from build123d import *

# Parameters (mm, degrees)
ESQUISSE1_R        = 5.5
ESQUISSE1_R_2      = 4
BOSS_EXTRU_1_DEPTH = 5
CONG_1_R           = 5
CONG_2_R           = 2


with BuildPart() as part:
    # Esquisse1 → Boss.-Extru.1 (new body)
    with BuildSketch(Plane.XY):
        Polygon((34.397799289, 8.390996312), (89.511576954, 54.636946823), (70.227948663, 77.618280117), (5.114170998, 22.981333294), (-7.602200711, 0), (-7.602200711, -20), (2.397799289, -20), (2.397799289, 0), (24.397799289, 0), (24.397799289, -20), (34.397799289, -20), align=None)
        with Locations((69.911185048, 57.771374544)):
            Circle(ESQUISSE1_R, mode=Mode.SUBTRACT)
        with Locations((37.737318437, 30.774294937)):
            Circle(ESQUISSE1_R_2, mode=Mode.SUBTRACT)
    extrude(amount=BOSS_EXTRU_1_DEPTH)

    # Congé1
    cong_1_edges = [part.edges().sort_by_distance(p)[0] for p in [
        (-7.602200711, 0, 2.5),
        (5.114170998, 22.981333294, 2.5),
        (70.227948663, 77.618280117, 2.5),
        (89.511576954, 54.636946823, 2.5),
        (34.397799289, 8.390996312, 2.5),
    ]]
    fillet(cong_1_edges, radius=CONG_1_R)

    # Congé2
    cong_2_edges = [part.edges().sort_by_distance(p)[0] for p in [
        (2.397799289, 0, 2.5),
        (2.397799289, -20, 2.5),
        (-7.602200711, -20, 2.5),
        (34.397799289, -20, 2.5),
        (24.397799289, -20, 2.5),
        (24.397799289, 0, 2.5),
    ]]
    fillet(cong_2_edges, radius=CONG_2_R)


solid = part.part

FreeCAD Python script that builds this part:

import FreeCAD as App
import Part
import Sketcher

V = App.Vector
Q = App.Units.Quantity


def edges_at(feature, points):
    """Names of the edges that pass closest to the given points."""
    edges = feature.Shape.Edges
    near = lambda p: min(range(len(edges)), key=lambda i: edges[i].distToShape(Part.Vertex(*p))[0])
    return sorted({f"Edge{near(p) + 1}" for p in points})


def add_polygon(sketch, points):
    """Adds a closed chain of lines whose ends are joined by coincident constraints."""
    first, n = sketch.GeometryCount, len(points)
    for a, b in zip(points, points[1:] + points[:1]):
        sketch.addGeometry(Part.LineSegment(App.Vector(*a, 0), App.Vector(*b, 0)), False)
    for i in range(n):
        sketch.addConstraint(Sketcher.Constraint("Coincident", first + i, 2, first + (i + 1) % n, 1))

doc = App.newDocument("Part")
body = doc.addObject("PartDesign::Body", "Body")

# Sketch on XY plane
sketch1 = doc.addObject("Sketcher::SketchObject", "Sketch")
body.addObject(sketch1)
sketch1.AttachmentSupport = (doc.XY_Plane, [""])
sketch1.MapMode = "FlatFace"
add_polygon(sketch1, [(34.4, 8.4), (89.5, 54.6), (70.2, 77.6), (5.1, 23), (-7.6, 0), (-7.6, -20), (2.4, -20), (2.4, 0), (24.4, 0), (24.4, -20), (34.4, -20)])  # lines 0-10
sketch1.addGeometry(Part.Circle(V(37.7, 30.8, 0), V(0, 0, 1), 4), False)  # 11
sketch1.addGeometry(Part.Circle(V(69.9, 57.8, 0), V(0, 0, 1), 5.5), False)  # 12
sketch1.addConstraint(Sketcher.Constraint("Vertical", 4))
sketch1.addConstraint(Sketcher.Constraint("Horizontal", 5))
sketch1.addConstraint(Sketcher.Constraint("Vertical", 6))
sketch1.addConstraint(Sketcher.Constraint("Horizontal", 7))
sketch1.addConstraint(Sketcher.Constraint("Vertical", 8))
sketch1.addConstraint(Sketcher.Constraint("Horizontal", 9))
sketch1.addConstraint(Sketcher.Constraint("Vertical", 10))
sketch1.addConstraint(Sketcher.Constraint("PointOnObject", 3, 2, -1))
sketch1.addConstraint(Sketcher.Constraint("PointOnObject", 6, 2, -1))
sketch1.addConstraint(Sketcher.Constraint("Perpendicular", 0, 1))
sketch1.addConstraint(Sketcher.Constraint("Perpendicular", 1, 2))
sketch1.addConstraint(Sketcher.Constraint("Horizontal", 5, 2, 8, 2))
sketch1.addConstraint(Sketcher.Constraint("Equal", 5, 9))
sketch1.addConstraint(Sketcher.Constraint("Diameter", 11, 8.0))
sketch1.addConstraint(Sketcher.Constraint("Diameter", 12, 11.0))
sketch1.addConstraint(Sketcher.Constraint("DistanceX", 5, 1, 5, 2, 10.0))
sketch1.addConstraint(Sketcher.Constraint("DistanceX", 7, 1, 7, 2, 22.0))
sketch1.addConstraint(Sketcher.Constraint("DistanceY", 4, 2, 4, 1, 20.0))
sketch1.addConstraint(Sketcher.Constraint("Angle", 0, Q("40 deg")))
sketch1.addConstraint(Sketcher.Constraint("Distance", 1, 30.0))
sketch1.addConstraint(Sketcher.Constraint("Distance", 2, 85.0))
sketch1.addConstraint(Sketcher.Constraint("DistanceX", 3, 2, -1, 1, 7.602201))
sketch1.addConstraint(Sketcher.Constraint("DistanceY", 10, 2, 11, 3, 22.383299))
sketch1.addConstraint(Sketcher.Constraint("DistanceY", 10, 1, 10, 2, 28.390996))
sketch1.addConstraint(Sketcher.Constraint("DistanceX", -1, 1, 11, 3, 37.737318))
sketch1.addConstraint(Sketcher.Constraint("DistanceX", -1, 1, 1, 2, 70.227949))
sketch1.addConstraint(Sketcher.Constraint("DistanceY", 11, 3, 12, 3, 26.99708))
sketch1.addConstraint(Sketcher.Constraint("DistanceX", 12, 3, 0, 2, 19.600392))
pad1 = doc.addObject("PartDesign::Pad", "Pad")
body.addObject(pad1)
pad1.Profile = sketch1
pad1.Length = 5
doc.recompute()

fillet = doc.addObject("PartDesign::Fillet", "Fillet")
body.addObject(fillet)
fillet.Base = (pad1, edges_at(pad1, [
    (-7.602, 0, 2.5),
    (5.114, 22.981, 2.5),
    (70.228, 77.618, 2.5),
    (89.512, 54.637, 2.5),
    (34.398, 8.391, 2.5),
]))
fillet.Radius = 5
doc.recompute()

fillet2 = doc.addObject("PartDesign::Fillet", "Fillet001")
body.addObject(fillet2)
fillet2.Base = (fillet, edges_at(fillet, [
    (2.398, 0, 2.5),
    (2.398, -20, 2.5),
    (-7.602, -20, 2.5),
    (34.398, -20, 2.5),
    (24.398, -20, 2.5),
    (24.398, 0, 2.5),
]))
fillet2.Radius = 2

doc.recompute()
